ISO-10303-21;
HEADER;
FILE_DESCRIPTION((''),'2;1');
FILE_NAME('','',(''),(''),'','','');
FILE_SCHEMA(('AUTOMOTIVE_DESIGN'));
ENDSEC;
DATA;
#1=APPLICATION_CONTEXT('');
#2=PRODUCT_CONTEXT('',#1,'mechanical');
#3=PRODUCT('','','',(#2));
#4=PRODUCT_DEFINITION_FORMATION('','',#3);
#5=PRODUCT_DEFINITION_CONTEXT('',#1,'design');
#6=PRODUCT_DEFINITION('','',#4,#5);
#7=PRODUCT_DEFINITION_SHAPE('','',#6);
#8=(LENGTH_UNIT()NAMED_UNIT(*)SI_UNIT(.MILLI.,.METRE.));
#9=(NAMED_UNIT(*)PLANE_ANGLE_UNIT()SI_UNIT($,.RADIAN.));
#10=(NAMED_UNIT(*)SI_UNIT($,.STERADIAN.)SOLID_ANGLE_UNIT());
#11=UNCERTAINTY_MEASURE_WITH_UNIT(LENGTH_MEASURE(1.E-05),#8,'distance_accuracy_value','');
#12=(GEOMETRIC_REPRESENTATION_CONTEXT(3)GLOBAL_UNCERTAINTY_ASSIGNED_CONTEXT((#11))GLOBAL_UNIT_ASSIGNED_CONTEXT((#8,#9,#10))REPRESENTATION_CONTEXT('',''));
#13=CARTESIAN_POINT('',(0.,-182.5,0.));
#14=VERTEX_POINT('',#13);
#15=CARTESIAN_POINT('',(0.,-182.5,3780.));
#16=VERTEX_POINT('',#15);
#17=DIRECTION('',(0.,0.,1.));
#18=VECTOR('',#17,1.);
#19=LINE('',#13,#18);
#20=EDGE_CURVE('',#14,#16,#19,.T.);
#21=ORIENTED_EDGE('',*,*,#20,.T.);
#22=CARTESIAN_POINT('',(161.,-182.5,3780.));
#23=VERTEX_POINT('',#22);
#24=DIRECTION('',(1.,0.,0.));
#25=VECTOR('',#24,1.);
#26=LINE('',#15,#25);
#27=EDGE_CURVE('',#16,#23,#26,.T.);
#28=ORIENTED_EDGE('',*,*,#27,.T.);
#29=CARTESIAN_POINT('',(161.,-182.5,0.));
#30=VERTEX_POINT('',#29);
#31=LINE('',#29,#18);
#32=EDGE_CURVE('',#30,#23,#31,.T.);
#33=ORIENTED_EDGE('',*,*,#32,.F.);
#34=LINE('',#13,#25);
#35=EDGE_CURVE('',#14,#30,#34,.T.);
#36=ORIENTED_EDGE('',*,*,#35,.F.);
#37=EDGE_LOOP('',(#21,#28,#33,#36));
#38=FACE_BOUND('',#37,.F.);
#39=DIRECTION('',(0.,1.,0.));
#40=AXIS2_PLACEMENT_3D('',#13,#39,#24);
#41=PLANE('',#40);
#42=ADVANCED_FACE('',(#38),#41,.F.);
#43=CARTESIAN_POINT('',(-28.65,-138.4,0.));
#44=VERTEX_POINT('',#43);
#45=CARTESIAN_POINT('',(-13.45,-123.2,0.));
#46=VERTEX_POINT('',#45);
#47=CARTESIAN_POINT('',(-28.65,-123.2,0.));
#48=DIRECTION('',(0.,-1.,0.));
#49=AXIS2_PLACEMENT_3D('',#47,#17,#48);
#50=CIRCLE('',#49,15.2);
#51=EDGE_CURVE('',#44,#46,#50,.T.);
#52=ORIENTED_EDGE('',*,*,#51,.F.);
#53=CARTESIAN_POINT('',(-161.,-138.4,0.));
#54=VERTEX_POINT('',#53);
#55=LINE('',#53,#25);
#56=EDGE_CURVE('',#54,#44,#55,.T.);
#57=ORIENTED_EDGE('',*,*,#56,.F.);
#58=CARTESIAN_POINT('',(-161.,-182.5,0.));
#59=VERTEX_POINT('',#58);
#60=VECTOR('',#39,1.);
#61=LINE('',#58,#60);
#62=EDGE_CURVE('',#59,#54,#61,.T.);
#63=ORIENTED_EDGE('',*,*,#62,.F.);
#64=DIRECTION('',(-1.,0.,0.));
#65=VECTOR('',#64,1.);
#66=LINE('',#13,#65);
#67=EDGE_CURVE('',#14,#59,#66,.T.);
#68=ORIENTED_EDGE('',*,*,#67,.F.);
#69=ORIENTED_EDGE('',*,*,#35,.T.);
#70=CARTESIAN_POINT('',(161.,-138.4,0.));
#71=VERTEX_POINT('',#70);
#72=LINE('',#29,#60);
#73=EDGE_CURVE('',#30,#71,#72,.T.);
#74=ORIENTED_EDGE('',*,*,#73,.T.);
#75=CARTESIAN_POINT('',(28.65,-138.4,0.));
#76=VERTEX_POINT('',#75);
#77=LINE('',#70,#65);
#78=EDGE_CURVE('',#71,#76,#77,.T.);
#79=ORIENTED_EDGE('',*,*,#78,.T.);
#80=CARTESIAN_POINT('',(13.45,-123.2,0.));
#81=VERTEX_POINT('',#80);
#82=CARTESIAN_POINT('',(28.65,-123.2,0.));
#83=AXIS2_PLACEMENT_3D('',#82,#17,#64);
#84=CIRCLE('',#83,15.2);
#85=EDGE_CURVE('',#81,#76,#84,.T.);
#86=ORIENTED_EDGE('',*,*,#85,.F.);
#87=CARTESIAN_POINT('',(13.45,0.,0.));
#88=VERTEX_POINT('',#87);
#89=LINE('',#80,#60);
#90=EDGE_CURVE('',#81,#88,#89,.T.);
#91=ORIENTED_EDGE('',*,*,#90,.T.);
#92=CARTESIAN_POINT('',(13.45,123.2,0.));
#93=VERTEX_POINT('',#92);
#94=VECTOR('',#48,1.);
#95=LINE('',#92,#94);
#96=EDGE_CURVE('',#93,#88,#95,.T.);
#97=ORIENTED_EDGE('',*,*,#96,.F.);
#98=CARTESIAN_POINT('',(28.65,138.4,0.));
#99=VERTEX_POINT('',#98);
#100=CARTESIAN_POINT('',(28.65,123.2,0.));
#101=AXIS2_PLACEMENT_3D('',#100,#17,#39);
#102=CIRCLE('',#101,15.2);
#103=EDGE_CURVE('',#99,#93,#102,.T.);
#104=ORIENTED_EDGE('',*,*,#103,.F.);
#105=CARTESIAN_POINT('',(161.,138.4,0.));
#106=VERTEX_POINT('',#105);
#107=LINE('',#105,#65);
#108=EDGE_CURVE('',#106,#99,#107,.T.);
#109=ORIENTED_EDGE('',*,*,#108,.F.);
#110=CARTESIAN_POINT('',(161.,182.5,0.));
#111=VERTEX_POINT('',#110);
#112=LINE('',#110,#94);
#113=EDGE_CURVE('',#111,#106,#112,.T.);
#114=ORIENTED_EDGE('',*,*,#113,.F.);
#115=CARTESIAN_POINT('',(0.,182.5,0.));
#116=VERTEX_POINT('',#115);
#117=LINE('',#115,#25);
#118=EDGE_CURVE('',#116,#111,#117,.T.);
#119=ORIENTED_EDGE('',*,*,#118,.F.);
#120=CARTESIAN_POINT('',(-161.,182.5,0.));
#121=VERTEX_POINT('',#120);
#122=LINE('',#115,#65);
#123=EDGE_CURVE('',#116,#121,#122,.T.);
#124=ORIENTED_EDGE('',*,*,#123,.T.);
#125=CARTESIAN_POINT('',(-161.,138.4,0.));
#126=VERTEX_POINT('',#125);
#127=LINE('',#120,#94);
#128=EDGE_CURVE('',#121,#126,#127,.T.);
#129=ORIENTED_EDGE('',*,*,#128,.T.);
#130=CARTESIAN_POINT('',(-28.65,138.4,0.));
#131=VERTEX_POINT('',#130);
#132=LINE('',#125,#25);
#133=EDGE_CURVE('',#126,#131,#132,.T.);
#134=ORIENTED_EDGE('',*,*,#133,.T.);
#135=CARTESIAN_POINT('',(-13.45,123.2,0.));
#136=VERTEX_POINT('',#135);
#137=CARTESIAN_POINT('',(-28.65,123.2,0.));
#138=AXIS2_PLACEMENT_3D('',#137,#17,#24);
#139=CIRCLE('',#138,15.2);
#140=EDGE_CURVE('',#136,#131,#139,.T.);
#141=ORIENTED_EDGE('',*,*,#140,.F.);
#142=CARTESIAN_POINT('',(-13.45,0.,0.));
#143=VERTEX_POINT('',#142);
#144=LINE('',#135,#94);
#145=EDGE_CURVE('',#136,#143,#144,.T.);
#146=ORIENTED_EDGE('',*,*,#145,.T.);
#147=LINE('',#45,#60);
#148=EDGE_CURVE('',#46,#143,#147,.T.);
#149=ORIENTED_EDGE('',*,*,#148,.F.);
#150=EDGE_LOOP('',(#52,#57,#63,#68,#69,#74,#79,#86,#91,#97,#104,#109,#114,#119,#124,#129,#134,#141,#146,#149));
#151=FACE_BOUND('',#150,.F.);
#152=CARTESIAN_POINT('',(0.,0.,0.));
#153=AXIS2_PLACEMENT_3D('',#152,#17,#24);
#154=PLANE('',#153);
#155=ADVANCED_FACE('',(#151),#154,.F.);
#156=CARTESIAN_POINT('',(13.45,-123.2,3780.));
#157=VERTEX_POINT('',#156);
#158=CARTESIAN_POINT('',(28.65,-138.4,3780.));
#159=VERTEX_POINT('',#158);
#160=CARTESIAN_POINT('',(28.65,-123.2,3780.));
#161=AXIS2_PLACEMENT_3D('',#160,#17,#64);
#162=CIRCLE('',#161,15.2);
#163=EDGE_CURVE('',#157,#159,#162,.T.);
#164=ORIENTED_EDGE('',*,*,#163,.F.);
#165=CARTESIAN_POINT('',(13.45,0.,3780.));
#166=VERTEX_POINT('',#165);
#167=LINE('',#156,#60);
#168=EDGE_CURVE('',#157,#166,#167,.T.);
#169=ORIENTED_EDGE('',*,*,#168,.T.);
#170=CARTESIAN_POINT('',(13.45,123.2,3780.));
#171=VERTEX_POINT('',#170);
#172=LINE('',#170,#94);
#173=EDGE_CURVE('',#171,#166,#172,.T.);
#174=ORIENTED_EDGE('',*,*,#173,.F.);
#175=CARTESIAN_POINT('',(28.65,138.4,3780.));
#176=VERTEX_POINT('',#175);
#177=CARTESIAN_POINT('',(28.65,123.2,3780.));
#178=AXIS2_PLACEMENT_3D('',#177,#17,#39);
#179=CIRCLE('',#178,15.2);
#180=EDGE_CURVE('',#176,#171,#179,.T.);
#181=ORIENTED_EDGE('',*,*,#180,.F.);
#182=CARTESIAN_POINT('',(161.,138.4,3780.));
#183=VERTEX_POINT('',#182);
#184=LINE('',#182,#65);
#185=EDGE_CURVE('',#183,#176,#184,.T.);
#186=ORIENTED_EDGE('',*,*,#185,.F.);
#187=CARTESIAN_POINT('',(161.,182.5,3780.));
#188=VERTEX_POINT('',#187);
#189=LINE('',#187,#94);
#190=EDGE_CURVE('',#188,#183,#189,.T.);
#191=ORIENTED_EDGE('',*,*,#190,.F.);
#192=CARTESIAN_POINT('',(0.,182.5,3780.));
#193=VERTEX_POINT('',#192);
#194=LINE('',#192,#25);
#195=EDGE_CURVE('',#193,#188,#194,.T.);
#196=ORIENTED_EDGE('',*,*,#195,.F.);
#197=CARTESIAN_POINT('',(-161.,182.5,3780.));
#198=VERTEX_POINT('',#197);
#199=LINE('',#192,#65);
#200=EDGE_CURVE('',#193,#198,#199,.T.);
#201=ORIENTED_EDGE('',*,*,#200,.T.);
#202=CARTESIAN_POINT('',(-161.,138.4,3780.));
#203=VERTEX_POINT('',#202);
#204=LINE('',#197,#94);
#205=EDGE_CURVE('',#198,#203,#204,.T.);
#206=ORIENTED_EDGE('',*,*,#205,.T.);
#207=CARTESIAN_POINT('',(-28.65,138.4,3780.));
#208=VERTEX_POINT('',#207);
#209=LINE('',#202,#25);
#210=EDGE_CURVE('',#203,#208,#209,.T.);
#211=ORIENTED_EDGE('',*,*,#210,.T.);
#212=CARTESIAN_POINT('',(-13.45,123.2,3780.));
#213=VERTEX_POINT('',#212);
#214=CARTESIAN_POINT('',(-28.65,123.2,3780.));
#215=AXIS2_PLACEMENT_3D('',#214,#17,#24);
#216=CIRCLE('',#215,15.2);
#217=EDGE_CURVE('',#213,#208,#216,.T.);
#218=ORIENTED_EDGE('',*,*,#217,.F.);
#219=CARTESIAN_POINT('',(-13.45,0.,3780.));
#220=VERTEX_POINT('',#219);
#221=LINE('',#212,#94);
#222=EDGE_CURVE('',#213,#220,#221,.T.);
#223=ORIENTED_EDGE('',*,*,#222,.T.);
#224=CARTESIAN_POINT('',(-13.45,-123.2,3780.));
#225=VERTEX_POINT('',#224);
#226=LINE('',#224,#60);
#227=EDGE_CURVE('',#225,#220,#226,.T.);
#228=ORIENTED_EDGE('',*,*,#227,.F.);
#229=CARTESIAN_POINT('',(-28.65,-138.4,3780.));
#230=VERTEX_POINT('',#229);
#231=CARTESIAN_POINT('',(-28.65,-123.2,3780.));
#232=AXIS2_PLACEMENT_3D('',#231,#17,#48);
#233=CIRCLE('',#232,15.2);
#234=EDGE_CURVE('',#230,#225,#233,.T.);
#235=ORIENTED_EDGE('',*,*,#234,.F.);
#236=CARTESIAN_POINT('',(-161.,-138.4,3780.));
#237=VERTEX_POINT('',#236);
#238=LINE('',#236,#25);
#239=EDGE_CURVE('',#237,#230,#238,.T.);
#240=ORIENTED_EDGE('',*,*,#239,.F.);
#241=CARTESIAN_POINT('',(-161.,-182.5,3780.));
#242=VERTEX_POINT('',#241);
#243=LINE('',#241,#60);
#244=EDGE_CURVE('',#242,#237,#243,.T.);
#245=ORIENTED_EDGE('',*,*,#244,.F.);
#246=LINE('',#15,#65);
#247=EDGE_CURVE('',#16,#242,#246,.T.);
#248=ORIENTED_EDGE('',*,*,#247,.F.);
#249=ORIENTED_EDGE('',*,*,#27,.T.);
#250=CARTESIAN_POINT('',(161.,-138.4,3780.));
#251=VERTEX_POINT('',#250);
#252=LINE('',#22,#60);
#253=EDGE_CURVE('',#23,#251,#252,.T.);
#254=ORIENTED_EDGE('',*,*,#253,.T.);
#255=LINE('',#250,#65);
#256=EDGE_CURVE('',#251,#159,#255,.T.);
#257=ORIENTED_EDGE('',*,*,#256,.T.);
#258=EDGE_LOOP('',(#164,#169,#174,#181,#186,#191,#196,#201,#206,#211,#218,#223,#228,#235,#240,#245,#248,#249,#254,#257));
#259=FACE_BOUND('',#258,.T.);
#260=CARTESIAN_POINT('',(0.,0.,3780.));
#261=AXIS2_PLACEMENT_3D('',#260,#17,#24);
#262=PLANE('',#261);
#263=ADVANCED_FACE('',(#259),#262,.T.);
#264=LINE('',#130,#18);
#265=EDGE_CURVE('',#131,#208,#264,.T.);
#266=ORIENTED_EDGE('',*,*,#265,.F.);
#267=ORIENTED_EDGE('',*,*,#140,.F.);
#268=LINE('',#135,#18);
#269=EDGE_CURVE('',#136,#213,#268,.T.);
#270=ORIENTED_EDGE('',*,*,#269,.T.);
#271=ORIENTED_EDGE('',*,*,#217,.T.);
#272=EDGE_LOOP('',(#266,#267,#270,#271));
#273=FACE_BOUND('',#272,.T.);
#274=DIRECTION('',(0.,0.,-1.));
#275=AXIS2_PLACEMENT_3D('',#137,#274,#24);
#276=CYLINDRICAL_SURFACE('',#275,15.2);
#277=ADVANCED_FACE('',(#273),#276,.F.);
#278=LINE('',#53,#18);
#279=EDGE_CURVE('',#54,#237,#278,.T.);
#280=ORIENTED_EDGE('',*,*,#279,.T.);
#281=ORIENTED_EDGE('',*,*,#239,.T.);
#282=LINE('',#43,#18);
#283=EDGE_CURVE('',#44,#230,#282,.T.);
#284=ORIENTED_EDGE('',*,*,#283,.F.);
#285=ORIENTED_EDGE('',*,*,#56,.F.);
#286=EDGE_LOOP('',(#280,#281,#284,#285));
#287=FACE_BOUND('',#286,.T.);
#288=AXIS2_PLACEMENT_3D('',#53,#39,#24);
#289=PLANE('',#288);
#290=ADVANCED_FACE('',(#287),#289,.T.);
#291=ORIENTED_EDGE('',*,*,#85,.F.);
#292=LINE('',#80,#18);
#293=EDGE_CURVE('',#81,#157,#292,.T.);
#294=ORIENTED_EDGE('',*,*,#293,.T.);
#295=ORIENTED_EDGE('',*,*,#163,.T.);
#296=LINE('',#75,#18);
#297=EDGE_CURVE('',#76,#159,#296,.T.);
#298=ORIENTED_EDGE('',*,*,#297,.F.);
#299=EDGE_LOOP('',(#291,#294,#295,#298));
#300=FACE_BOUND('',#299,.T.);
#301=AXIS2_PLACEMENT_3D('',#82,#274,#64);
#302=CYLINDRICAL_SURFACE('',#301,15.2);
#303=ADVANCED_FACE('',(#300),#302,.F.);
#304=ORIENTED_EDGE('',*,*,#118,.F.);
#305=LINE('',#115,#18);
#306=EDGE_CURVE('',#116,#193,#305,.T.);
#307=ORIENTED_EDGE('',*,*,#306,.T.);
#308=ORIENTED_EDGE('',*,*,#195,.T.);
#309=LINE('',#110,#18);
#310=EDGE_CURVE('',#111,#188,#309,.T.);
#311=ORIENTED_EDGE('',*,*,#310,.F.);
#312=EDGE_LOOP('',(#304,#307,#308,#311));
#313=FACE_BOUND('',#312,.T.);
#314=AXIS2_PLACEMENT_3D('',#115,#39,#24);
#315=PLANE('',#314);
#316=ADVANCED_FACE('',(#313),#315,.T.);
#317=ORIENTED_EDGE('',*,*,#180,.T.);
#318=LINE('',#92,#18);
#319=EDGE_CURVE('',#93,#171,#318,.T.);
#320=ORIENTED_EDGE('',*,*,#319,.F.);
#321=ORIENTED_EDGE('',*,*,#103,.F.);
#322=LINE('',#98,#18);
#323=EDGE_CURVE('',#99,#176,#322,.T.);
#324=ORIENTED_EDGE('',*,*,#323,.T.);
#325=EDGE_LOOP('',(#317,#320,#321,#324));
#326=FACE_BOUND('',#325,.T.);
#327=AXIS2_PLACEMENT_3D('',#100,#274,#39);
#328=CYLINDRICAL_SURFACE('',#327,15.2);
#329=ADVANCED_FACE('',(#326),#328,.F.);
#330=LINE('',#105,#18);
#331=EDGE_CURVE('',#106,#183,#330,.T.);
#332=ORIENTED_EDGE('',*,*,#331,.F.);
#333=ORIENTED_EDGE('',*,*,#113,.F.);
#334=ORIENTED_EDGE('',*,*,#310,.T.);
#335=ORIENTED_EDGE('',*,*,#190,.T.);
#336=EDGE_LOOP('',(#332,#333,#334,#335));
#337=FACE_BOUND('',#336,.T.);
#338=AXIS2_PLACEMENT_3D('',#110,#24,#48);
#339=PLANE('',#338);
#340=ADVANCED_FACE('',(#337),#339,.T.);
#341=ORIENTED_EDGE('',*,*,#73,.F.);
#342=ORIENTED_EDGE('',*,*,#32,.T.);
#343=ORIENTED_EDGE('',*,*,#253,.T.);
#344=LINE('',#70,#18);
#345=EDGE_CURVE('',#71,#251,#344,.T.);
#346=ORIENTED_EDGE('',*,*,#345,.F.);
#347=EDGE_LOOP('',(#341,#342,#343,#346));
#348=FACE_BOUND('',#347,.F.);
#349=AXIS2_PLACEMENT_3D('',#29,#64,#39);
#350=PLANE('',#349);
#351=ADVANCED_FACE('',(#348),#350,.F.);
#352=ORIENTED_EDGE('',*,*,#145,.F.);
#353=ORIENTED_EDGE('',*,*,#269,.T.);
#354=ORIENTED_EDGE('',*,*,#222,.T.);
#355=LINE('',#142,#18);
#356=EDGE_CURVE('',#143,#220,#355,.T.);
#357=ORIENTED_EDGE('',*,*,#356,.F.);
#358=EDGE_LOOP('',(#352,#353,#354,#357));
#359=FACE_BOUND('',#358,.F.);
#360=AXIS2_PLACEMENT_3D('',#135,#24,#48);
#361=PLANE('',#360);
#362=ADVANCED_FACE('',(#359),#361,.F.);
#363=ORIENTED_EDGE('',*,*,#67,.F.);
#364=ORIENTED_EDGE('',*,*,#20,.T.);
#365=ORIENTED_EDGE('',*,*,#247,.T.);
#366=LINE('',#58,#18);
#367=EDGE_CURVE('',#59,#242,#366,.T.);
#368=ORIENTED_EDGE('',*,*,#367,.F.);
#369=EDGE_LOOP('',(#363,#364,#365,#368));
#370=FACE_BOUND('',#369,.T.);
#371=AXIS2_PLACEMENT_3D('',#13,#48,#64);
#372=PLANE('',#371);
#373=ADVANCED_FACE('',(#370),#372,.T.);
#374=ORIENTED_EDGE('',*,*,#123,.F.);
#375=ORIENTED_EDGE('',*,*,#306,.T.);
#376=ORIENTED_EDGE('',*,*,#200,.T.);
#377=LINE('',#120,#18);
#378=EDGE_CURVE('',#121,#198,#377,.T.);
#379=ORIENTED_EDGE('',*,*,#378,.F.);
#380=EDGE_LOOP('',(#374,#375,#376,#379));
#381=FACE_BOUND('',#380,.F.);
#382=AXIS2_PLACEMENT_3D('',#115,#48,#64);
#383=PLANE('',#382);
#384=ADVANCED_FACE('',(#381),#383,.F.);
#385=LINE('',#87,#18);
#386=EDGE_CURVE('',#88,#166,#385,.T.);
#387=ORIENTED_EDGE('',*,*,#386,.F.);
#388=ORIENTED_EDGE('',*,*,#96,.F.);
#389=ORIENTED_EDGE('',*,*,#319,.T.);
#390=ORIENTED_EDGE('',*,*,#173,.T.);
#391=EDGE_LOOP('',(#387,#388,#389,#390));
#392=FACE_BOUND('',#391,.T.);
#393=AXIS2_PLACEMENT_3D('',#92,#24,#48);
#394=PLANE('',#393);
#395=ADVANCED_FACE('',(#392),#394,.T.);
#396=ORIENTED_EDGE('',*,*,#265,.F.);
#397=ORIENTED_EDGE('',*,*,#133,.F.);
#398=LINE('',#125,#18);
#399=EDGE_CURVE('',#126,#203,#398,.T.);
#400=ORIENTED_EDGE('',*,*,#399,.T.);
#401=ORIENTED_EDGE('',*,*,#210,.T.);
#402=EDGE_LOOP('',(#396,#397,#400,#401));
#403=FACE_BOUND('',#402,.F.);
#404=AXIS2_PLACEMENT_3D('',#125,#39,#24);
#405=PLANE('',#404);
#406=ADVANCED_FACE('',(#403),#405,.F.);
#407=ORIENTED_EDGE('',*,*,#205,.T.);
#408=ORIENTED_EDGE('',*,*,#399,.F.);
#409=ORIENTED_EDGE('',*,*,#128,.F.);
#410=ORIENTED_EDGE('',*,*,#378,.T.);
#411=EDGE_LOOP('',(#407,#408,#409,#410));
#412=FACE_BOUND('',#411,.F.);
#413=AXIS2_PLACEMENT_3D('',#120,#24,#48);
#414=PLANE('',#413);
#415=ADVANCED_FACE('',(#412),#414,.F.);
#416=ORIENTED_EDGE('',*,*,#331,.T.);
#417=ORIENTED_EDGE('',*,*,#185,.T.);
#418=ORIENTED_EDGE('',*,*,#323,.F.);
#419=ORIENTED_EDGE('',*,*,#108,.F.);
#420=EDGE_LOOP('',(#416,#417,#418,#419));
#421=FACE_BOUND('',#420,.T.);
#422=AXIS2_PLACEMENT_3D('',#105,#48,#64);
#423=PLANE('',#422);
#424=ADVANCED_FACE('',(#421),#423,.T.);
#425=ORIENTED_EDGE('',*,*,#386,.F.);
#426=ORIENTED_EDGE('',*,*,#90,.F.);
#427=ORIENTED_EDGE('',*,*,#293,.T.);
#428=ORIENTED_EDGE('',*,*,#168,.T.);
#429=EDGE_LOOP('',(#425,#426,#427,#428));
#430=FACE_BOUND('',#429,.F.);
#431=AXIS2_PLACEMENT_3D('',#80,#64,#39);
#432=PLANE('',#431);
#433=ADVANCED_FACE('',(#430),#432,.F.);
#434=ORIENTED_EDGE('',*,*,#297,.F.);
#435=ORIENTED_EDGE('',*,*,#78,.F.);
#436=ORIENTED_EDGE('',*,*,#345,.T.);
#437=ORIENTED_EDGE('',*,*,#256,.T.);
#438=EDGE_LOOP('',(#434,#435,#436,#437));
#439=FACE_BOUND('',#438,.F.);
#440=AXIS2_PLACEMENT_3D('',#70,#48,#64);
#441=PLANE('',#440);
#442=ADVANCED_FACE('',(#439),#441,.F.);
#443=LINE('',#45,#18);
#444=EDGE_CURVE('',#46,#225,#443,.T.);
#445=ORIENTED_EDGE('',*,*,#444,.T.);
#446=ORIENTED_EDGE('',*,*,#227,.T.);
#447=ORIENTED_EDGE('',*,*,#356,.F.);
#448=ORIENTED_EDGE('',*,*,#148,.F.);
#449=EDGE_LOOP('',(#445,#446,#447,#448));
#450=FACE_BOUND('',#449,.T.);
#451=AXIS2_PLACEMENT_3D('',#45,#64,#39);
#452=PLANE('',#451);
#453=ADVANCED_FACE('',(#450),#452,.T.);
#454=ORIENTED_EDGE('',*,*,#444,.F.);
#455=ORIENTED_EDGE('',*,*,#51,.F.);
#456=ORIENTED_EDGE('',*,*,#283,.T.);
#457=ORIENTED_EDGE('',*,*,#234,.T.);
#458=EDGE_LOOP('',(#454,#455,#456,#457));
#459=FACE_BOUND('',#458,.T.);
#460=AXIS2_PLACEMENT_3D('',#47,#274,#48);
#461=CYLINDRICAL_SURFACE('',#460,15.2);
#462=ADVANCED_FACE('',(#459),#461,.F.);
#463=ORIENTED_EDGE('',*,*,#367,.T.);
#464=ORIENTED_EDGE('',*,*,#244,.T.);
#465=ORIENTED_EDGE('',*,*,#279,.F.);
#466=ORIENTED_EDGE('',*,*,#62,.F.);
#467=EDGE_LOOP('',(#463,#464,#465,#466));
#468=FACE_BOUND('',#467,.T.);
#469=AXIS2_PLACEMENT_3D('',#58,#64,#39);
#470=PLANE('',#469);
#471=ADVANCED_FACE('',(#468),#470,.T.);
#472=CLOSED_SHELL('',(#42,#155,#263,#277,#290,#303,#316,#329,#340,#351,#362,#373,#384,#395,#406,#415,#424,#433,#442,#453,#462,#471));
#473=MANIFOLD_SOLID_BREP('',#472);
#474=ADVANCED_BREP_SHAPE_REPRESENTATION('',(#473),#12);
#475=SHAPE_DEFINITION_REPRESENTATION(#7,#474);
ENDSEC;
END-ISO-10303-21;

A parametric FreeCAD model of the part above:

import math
import FreeCAD as App
import Part
import Sketcher

doc = App.newDocument("Part")
params = doc.addObject("Spreadsheet::Sheet", "Params")
for row, (alias, value) in enumerate([
    ("sketch1_radius", "15.2 mm"),
    ("sketch1_height", "44.1 mm"),
    ("pad1_length", "3780 mm"),
], start=1):
    params.set(f"A{row}", alias)
    params.set(f"B{row}", "=" + value)
    params.setAlias(f"B{row}", alias)

body = doc.addObject("PartDesign::Body", "Body")

# Sketch on XY plane
sketch1 = body.newObject("Sketcher::SketchObject", "Sketch")
sketch1.AttachmentSupport = (doc.getObject("XY_Plane"), [""])
sketch1.MapMode = "FlatFace"
sketch1.addGeometry([
    Part.LineSegment(App.Vector(-161, -138, 0), App.Vector(-161, -182, 0)),  # 0
    Part.LineSegment(App.Vector(-161, -182, 0), App.Vector(161, -182, 0)),  # 1
    Part.LineSegment(App.Vector(161, -182, 0), App.Vector(161, -138, 0)),  # 2
    Part.LineSegment(App.Vector(161, -138, 0), App.Vector(29, -138, 0)),  # 3
    Part.ArcOfCircle(Part.Circle(App.Vector(29, -123, 0), App.Vector(0, 0, 1), 15), math.radians(180), math.radians(270)),  # 4
    Part.LineSegment(App.Vector(13, -123, 0), App.Vector(13, 123, 0)),  # 5
    Part.ArcOfCircle(Part.Circle(App.Vector(29, 123, 0), App.Vector(0, 0, 1), 15), math.radians(90), math.radians(180)),  # 6
    Part.LineSegment(App.Vector(29, 138, 0), App.Vector(161, 138, 0)),  # 7
    Part.LineSegment(App.Vector(161, 138, 0), App.Vector(161, 182, 0)),  # 8
    Part.LineSegment(App.Vector(161, 182, 0), App.Vector(-161, 182, 0)),  # 9
    Part.LineSegment(App.Vector(-161, 182, 0), App.Vector(-161, 138, 0)),  # 10
    Part.LineSegment(App.Vector(-161, 138, 0), App.Vector(-29, 138, 0)),  # 11
    Part.ArcOfCircle(Part.Circle(App.Vector(-29, 123, 0), App.Vector(0, 0, 1), 15), math.radians(0), math.radians(90)),  # 12
    Part.LineSegment(App.Vector(-13, 123, 0), App.Vector(-13, -123, 0)),  # 13
    Part.ArcOfCircle(Part.Circle(App.Vector(-29, -123, 0), App.Vector(0, 0, 1), 15), math.radians(-90), math.radians(0)),  # 14
    Part.LineSegment(App.Vector(-29, -138, 0), App.Vector(-161, -138, 0)),  # 15
], False)
sketch1.addConstraint([
    Sketcher.Constraint("Coincident", 0, 2, 1, 1),
    Sketcher.Constraint("Coincident", 1, 2, 2, 1),
    Sketcher.Constraint("Coincident", 2, 2, 3, 1),
    Sketcher.Constraint("Tangent", 3, 2, 4, 2),
    Sketcher.Constraint("Tangent", 4, 1, 5, 1),
    Sketcher.Constraint("Tangent", 5, 2, 6, 2),
    Sketcher.Constraint("Tangent", 6, 1, 7, 1),
    Sketcher.Constraint("Coincident", 7, 2, 8, 1),
    Sketcher.Constraint("Coincident", 8, 2, 9, 1),
    Sketcher.Constraint("Coincident", 9, 2, 10, 1),
    Sketcher.Constraint("Coincident", 10, 2, 11, 1),
    Sketcher.Constraint("Tangent", 11, 2, 12, 2),
    Sketcher.Constraint("Tangent", 12, 1, 13, 1),
    Sketcher.Constraint("Tangent", 13, 2, 14, 2),
    Sketcher.Constraint("Tangent", 14, 1, 15, 1),
    Sketcher.Constraint("Coincident", 15, 2, 0, 1),
    Sketcher.Constraint("Vertical", 0),
    Sketcher.Constraint("Horizontal", 1),
    Sketcher.Constraint("Vertical", 2),
    Sketcher.Constraint("Horizontal", 3),
    Sketcher.Constraint("Vertical", 5),
    Sketcher.Constraint("Horizontal", 7),
    Sketcher.Constraint("Vertical", 8),
    Sketcher.Constraint("Horizontal", 9),
    Sketcher.Constraint("Vertical", 10),
    Sketcher.Constraint("Horizontal", 11),
    Sketcher.Constraint("Vertical", 13),
    Sketcher.Constraint("Horizontal", 15),
    Sketcher.Constraint("Equal", 4, 6),
    Sketcher.Constraint("Equal", 6, 12),
    Sketcher.Constraint("Equal", 12, 14),
    Sketcher.Constraint("Symmetric", 4, 3, 12, 3, -1, 1),
    Sketcher.Constraint("Symmetric", 0, 2, 8, 2, -1, 1),
    Sketcher.Constraint("Symmetric", 7, 2, 10, 2, -2),
    Sketcher.Constraint("Symmetric", 2, 2, 15, 2, -2),
    Sketcher.Constraint("Radius", 4, 15.2),
    Sketcher.Constraint("DistanceY", 0, 2, 0, 1, 44.1),
    Sketcher.Constraint("DistanceX", 0, 2, -1, 1, 161.0),
    Sketcher.Constraint("DistanceY", 0, 2, -1, 1, 182.5),
    Sketcher.Constraint("DistanceX", -1, 1, 4, 1, 13.45),
])
sketch1.setExpression("Constraints[35]", "Params.sketch1_radius")
sketch1.setExpression("Constraints[36]", "Params.sketch1_height")
pad1 = body.newObject("PartDesign::Pad", "Pad")
pad1.Profile = sketch1
pad1.setExpression("Length", "Params.pad1_length")

doc.recompute()
